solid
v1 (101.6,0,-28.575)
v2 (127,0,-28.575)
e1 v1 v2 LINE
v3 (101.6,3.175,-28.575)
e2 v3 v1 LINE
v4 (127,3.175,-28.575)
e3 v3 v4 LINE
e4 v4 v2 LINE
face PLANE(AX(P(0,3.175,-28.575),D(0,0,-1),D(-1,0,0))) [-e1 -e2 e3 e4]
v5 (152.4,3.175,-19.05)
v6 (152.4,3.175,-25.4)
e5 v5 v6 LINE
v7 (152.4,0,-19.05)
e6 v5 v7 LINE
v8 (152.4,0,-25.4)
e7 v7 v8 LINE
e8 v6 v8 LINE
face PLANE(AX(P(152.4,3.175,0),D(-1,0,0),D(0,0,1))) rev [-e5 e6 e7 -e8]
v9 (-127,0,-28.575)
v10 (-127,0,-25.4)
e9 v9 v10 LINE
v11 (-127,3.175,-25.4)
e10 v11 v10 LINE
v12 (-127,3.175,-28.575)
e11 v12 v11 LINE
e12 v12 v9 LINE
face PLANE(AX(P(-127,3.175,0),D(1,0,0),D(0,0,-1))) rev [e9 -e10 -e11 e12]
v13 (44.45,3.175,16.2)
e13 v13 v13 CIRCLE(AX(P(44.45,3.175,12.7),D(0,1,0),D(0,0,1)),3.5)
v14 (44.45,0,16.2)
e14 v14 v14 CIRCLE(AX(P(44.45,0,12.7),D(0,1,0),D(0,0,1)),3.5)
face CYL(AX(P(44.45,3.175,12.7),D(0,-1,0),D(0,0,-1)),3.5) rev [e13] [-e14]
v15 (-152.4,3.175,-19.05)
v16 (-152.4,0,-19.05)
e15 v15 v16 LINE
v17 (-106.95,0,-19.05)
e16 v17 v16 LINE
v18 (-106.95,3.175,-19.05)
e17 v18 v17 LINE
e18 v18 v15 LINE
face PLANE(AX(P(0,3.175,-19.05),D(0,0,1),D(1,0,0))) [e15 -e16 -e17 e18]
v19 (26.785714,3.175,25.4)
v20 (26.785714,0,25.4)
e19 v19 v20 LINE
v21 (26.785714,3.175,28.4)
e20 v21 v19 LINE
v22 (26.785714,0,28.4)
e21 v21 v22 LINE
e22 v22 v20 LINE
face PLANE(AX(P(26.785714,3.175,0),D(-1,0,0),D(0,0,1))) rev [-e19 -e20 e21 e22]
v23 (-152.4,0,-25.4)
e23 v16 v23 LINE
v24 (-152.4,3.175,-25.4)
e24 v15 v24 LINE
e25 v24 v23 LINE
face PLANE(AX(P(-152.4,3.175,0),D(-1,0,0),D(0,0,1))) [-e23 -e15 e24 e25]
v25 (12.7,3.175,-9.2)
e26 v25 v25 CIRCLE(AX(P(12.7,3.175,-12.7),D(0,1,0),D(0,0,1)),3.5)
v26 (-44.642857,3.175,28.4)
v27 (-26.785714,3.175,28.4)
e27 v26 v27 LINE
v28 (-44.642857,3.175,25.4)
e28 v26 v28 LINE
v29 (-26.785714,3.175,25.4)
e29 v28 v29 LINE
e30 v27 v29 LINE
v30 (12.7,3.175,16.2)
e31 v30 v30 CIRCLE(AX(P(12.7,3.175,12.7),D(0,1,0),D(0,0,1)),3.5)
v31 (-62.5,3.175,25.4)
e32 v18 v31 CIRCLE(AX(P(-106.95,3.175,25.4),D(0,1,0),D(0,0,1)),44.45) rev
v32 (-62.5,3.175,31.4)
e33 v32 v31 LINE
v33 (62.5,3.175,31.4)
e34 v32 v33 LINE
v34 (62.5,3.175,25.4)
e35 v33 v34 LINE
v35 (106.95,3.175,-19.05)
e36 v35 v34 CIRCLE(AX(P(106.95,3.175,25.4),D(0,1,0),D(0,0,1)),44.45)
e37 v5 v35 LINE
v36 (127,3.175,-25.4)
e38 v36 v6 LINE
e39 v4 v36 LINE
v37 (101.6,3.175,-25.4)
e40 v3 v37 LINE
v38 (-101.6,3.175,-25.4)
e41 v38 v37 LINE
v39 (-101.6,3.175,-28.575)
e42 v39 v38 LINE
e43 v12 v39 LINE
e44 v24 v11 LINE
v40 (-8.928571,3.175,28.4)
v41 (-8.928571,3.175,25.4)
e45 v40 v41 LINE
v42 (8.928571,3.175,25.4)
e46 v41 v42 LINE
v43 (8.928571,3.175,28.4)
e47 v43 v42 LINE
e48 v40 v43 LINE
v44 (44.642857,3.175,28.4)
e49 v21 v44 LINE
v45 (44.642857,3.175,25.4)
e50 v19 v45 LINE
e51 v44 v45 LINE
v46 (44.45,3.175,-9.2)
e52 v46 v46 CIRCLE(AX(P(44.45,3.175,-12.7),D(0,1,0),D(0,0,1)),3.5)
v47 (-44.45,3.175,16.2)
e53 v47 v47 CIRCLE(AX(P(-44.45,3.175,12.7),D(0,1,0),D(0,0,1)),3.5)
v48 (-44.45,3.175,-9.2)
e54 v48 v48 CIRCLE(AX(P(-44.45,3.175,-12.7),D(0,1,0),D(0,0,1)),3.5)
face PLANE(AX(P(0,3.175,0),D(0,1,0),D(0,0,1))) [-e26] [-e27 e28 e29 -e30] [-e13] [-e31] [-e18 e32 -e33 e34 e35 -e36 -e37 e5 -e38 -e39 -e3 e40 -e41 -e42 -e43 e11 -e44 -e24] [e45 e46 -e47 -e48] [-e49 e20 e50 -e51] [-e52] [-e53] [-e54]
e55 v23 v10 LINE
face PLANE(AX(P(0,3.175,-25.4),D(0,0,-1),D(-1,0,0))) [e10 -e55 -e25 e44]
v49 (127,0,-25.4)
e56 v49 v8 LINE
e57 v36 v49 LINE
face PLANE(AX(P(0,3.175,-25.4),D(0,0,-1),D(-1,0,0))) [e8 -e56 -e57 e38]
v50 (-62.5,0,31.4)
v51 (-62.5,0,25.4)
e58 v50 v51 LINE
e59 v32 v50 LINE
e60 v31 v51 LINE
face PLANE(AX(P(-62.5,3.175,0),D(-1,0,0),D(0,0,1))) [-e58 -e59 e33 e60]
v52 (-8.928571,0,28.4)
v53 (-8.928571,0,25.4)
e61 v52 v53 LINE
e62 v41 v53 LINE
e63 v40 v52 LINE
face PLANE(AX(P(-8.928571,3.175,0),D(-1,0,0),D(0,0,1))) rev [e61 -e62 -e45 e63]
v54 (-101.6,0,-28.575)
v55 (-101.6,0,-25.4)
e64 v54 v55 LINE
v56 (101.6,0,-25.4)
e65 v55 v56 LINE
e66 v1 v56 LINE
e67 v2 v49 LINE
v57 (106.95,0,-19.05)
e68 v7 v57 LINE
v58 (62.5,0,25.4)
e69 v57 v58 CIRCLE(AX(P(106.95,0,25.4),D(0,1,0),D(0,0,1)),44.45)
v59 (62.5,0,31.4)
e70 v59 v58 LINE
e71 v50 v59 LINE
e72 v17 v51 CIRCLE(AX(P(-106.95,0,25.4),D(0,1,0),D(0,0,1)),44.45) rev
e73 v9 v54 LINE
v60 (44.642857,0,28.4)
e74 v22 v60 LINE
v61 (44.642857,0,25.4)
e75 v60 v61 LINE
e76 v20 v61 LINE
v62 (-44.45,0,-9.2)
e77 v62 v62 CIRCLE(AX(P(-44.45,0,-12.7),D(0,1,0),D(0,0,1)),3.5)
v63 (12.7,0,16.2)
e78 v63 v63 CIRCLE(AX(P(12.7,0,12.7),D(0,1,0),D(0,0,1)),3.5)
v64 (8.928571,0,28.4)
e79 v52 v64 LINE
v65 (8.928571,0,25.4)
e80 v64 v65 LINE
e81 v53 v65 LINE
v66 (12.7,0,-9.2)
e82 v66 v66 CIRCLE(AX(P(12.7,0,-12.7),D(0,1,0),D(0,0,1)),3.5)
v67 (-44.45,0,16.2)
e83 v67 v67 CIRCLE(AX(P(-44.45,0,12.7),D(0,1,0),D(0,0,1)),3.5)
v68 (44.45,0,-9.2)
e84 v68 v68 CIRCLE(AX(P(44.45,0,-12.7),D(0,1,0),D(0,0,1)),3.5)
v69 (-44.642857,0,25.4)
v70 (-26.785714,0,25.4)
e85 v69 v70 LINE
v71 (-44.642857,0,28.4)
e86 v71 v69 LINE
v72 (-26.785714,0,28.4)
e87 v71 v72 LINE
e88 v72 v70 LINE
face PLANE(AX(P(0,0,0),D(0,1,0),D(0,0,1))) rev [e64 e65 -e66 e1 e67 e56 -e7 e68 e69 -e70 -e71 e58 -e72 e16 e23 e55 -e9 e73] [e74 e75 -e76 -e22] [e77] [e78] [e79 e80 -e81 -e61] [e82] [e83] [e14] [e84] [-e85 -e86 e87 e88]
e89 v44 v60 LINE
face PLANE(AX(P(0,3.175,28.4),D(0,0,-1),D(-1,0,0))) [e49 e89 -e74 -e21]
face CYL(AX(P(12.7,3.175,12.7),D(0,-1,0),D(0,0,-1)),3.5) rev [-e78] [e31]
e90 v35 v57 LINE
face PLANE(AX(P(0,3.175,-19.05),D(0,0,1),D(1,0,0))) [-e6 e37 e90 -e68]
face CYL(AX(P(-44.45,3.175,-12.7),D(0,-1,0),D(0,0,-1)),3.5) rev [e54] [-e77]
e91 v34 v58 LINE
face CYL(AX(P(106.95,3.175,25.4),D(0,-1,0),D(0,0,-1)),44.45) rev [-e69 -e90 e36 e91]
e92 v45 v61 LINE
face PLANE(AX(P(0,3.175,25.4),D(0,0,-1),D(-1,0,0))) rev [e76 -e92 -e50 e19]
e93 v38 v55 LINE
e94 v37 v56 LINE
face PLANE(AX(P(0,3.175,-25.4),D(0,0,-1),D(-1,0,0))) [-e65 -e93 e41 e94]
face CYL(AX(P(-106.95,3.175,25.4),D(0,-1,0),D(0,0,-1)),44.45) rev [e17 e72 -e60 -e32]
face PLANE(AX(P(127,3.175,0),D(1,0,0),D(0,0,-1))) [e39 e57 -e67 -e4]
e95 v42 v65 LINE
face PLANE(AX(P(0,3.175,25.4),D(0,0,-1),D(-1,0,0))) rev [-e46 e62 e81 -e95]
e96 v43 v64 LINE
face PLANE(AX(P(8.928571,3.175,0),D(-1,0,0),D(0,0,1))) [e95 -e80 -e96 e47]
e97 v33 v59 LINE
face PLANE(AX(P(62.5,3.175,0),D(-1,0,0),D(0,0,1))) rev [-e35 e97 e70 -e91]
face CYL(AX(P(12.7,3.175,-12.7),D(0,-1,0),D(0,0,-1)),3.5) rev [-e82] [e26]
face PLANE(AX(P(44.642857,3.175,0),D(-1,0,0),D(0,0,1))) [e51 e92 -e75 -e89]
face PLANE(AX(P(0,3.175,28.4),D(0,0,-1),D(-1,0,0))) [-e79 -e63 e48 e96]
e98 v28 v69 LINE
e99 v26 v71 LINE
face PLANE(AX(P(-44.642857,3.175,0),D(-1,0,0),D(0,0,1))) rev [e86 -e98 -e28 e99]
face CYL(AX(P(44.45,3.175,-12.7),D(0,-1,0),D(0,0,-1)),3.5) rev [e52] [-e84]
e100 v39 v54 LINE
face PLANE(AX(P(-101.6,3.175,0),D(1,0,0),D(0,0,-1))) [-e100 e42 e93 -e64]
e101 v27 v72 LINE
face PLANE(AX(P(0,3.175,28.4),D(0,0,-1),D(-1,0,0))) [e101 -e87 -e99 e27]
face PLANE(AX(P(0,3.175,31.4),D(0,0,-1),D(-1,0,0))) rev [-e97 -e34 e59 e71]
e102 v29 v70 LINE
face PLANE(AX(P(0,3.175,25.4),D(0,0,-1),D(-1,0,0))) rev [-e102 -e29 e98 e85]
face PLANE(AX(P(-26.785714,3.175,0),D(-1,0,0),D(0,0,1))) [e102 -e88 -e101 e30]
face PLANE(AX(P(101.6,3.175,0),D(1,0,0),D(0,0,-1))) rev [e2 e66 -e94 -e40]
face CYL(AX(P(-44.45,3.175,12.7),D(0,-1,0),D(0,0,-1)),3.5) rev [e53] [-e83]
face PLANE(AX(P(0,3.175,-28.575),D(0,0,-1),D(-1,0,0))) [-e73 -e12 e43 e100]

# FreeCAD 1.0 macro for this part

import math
import FreeCAD as App
import Part
import Sketcher
Q = App.Units.Quantity


def add_polygon(sketch, points):
    """Adds a closed chain of lines whose ends are joined by coincident constraints."""
    first, n = sketch.GeometryCount, len(points)
    for a, b in zip(points, points[1:] + points[:1]):
        sketch.addGeometry(Part.LineSegment(App.Vector(*a, 0), App.Vector(*b, 0)), False)
    for i in range(n):
        sketch.addConstraint(Sketcher.Constraint("Coincident", first + i, 2, first + (i + 1) % n, 1))

doc = App.newDocument("Part")
params = doc.addObject("Spreadsheet::Sheet", "Params")
for row, (alias, value) in enumerate([
    ("sketch1_width", "1 in"),
    ("sketch1_width2", "8 in"),
    ("sketch1_radius", "1.75 in"),
    ("sketch1_height", "0.125 in"),
    ("pad1_length", "0.125 in"),
], start=1):
    params.set(f"A{row}", alias)
    params.set(f"B{row}", "=" + value)
    params.setAlias(f"B{row}", alias)

body = doc.addObject("PartDesign::Body", "Body")

sketch1 = body.newObject("Sketcher::SketchObject", "Sketch")
sketch1.AttachmentSupport = (doc.getObject("XZ_Plane"), [""])
sketch1.MapMode = "FlatFace"
sketch1.addGeometry(Part.LineSegment(App.Vector(-152.4, -19.1, 0), App.Vector(-107, -19.1, 0)), False)
sketch1.addGeometry(Part.ArcOfCircle(Part.Circle(App.Vector(-106.9, 25.4, 0), App.Vector(0, 0, 1), 44.4), math.radians(-90), math.radians(0)), False)
sketch1.addGeometry(Part.LineSegment(App.Vector(-62.5, 25.4, 0), App.Vector(-62.5, 31.4, 0)), False)
sketch1.addGeometry(Part.LineSegment(App.Vector(-62.5, 31.4, 0), App.Vector(62.5, 31.4, 0)), False)
sketch1.addGeometry(Part.LineSegment(App.Vector(62.5, 31.4, 0), App.Vector(62.5, 25.4, 0)), False)
sketch1.addGeometry(Part.ArcOfCircle(Part.Circle(App.Vector(106.9, 25.4, 0), App.Vector(0, 0, 1), 44.4), math.radians(180), math.radians(270)), False)
sketch1.addGeometry(Part.LineSegment(App.Vector(107, -19.1, 0), App.Vector(152.4, -19.1, 0)), False)
sketch1.addGeometry(Part.LineSegment(App.Vector(152.4, -19.1, 0), App.Vector(152.4, -25.4, 0)), False)
sketch1.addGeometry(Part.LineSegment(App.Vector(152.4, -25.4, 0), App.Vector(127, -25.4, 0)), False)
sketch1.addGeometry(Part.LineSegment(App.Vector(127, -25.4, 0), App.Vector(127, -28.6, 0)), False)
sketch1.addGeometry(Part.LineSegment(App.Vector(127, -28.6, 0), App.Vector(101.6, -28.6, 0)), False)
sketch1.addGeometry(Part.LineSegment(App.Vector(101.6, -28.6, 0), App.Vector(101.6, -25.4, 0)), False)
sketch1.addGeometry(Part.LineSegment(App.Vector(101.6, -25.4, 0), App.Vector(-101.6, -25.4, 0)), False)
sketch1.addGeometry(Part.LineSegment(App.Vector(-101.6, -25.4, 0), App.Vector(-101.6, -28.6, 0)), False)
sketch1.addGeometry(Part.LineSegment(App.Vector(-101.6, -28.6, 0), App.Vector(-127, -28.6, 0)), False)
sketch1.addGeometry(Part.LineSegment(App.Vector(-127, -28.6, 0), App.Vector(-127, -25.4, 0)), False)
sketch1.addGeometry(Part.LineSegment(App.Vector(-127, -25.4, 0), App.Vector(-152.4, -25.4, 0)), False)
sketch1.addGeometry(Part.LineSegment(App.Vector(-152.4, -25.4, 0), App.Vector(-152.4, -19.1, 0)), False)
add_polygon(sketch1, [(-44.6, 25.4), (-26.8, 25.4), (-26.8, 28.4), (-44.6, 28.4)])
add_polygon(sketch1, [(-8.9, 25.4), (8.9, 25.4), (8.9, 28.4), (-8.9, 28.4)])
add_polygon(sketch1, [(26.8, 25.4), (44.6, 25.4), (44.6, 28.4), (26.8, 28.4)])
sketch1.addGeometry(Part.Circle(App.Vector(-44.5, 12.7, 0), App.Vector(0, 0, 1), 3.5), False)
sketch1.addGeometry(Part.Circle(App.Vector(12.7, 12.7, 0), App.Vector(0, 0, 1), 3.5), False)
sketch1.addGeometry(Part.Circle(App.Vector(44.5, 12.7, 0), App.Vector(0, 0, 1), 3.5), False)
sketch1.addGeometry(Part.Circle(App.Vector(-44.5, -12.7, 0), App.Vector(0, 0, 1), 3.5), False)
sketch1.addGeometry(Part.Circle(App.Vector(12.7, -12.7, 0), App.Vector(0, 0, 1), 3.5), False)
sketch1.addGeometry(Part.Circle(App.Vector(44.5, -12.7, 0), App.Vector(0, 0, 1), 3.5), False)
sketch1.addConstraint([
    Sketcher.Constraint("Tangent", 0, 2, 1, 1),
    Sketcher.Constraint("Tangent", 1, 2, 2, 1),
    Sketcher.Constraint("Coincident", 2, 2, 3, 1),
    Sketcher.Constraint("Coincident", 3, 2, 4, 1),
    Sketcher.Constraint("Tangent", 4, 2, 5, 1),
    Sketcher.Constraint("Tangent", 5, 2, 6, 1),
    Sketcher.Constraint("Coincident", 6, 2, 7, 1),
    Sketcher.Constraint("Coincident", 7, 2, 8, 1),
    Sketcher.Constraint("Coincident", 8, 2, 9, 1),
    Sketcher.Constraint("Coincident", 9, 2, 10, 1),
    Sketcher.Constraint("Coincident", 10, 2, 11, 1),
    Sketcher.Constraint("Coincident", 11, 2, 12, 1),
    Sketcher.Constraint("Coincident", 12, 2, 13, 1),
    Sketcher.Constraint("Coincident", 13, 2, 14, 1),
    Sketcher.Constraint("Coincident", 14, 2, 15, 1),
    Sketcher.Constraint("Coincident", 15, 2, 16, 1),
    Sketcher.Constraint("Coincident", 16, 2, 17, 1),
    Sketcher.Constraint("Coincident", 17, 2, 0, 1),
    Sketcher.Constraint("Horizontal", 0),
    Sketcher.Constraint("Vertical", 2),
    Sketcher.Constraint("Horizontal", 3),
    Sketcher.Constraint("Vertical", 4),
    Sketcher.Constraint("Horizontal", 6),
    Sketcher.Constraint("Vertical", 7),
    Sketcher.Constraint("Horizontal", 8),
    Sketcher.Constraint("Vertical", 9),
    Sketcher.Constraint("Horizontal", 10),
    Sketcher.Constraint("Vertical", 11),
    Sketcher.Constraint("Horizontal", 12),
    Sketcher.Constraint("Vertical", 13),
    Sketcher.Constraint("Horizontal", 14),
    Sketcher.Constraint("Vertical", 15),
    Sketcher.Constraint("Horizontal", 16),
    Sketcher.Constraint("Vertical", 17),
    Sketcher.Constraint("Horizontal", 18),
    Sketcher.Constraint("Vertical", 19),
    Sketcher.Constraint("Horizontal", 20),
    Sketcher.Constraint("Vertical", 21),
    Sketcher.Constraint("Horizontal", 22),
    Sketcher.Constraint("Vertical", 23),
    Sketcher.Constraint("Horizontal", 24),
    Sketcher.Constraint("Vertical", 25),
    Sketcher.Constraint("Horizontal", 26),
    Sketcher.Constraint("Vertical", 27),
    Sketcher.Constraint("Horizontal", 28),
    Sketcher.Constraint("Vertical", 29),
    Sketcher.Constraint("Equal", 1, 5),
    Sketcher.Constraint("Equal", 30, 31),
    Sketcher.Constraint("Equal", 31, 32),
    Sketcher.Constraint("Equal", 32, 33),
    Sketcher.Constraint("Equal", 33, 34),
    Sketcher.Constraint("Equal", 34, 35),
    Sketcher.Constraint("Symmetric", 32, 3, 33, 3, -1, 1),
    Sketcher.Constraint("Symmetric", 30, 3, 35, 3, -1, 1),
    Sketcher.Constraint("Symmetric", 1, 3, 5, 3, -2),
    Sketcher.Constraint("Symmetric", 30, 3, 32, 3, -2),
    Sketcher.Constraint("Symmetric", 10, 2, 13, 2, -2),
    Sketcher.Constraint("Symmetric", 8, 2, 15, 2, -2),
    Sketcher.Constraint("Symmetric", 21, 2, 26, 2, -2),
    Sketcher.Constraint("Symmetric", 19, 2, 28, 2, -2),
    Sketcher.Constraint("Symmetric", 31, 3, 34, 3, -1),
    Sketcher.Constraint("Horizontal", 30, 3, 31, 3),
    Sketcher.Constraint("Horizontal", 8, 2, 11, 2),
    Sketcher.Constraint("Horizontal", 4, 2, 18, 2),
    Sketcher.Constraint("Horizontal", 21, 2, 22, 2),
    Sketcher.Constraint("Horizontal", 20, 2, 23, 2),
    Sketcher.Constraint("Equal", 0, 6),
    Sketcher.Constraint("Equal", 8, 10),
    Sketcher.Constraint("Equal", 20, 22),
    Sketcher.Constraint("DistanceX", 8, 2, 8, 1, Q("1 in")),
    Sketcher.Constraint("DistanceX", 12, 2, 12, 1, Q("8 in")),
    Sketcher.Constraint("Radius", 1, Q("1.75 in")),
    Sketcher.Constraint("DistanceY", -1, 1, 1, 3, Q("1 in")),
    Sketcher.Constraint("DistanceY", 7, 2, -1, 1, Q("1 in")),
    Sketcher.Constraint("DistanceY", 33, 3, 30, 3, Q("1 in")),
    Sketcher.Constraint("DistanceX", -1, 1, 31, 3, Q("0.5 in")),
    Sketcher.Constraint("DistanceX", 30, 3, 32, 3, Q("3.5 in")),
    Sketcher.Constraint("Diameter", 30, Q("7 mm")),
    Sketcher.Constraint("DistanceY", 9, 2, 9, 1, Q("0.125 in")),
    Sketcher.Constraint("DistanceX", 0, 1, 0, 2, Q("45.45 mm")),
    Sketcher.Constraint("DistanceY", 2, 1, 2, 2, Q("6 mm")),
    Sketcher.Constraint("DistanceY", 19, 1, 19, 2, Q("3 mm")),
    Sketcher.Constraint("DistanceX", 18, 1, 18, 2, Q("17.857143 mm")),
    Sketcher.Constraint("DistanceX", -1, 1, 22, 2, Q("8.928571 mm")),
    Sketcher.Constraint("DistanceX", 18, 2, -1, 1, Q("26.785714 mm")),
])
sketch1.setExpression("Constraints[81]", "Params.sketch1_width")
sketch1.setExpression("Constraints[82]", "Params.sketch1_width2")
sketch1.setExpression("Constraints[83]", "Params.sketch1_radius")
sketch1.setExpression("Constraints[90]", "Params.sketch1_height")
pad1 = body.newObject("PartDesign::Pad", "Pad")
pad1.Profile = sketch1
pad1.setExpression("Length", "Params.pad1_length")
pad1.Reversed = True

doc.recompute()
